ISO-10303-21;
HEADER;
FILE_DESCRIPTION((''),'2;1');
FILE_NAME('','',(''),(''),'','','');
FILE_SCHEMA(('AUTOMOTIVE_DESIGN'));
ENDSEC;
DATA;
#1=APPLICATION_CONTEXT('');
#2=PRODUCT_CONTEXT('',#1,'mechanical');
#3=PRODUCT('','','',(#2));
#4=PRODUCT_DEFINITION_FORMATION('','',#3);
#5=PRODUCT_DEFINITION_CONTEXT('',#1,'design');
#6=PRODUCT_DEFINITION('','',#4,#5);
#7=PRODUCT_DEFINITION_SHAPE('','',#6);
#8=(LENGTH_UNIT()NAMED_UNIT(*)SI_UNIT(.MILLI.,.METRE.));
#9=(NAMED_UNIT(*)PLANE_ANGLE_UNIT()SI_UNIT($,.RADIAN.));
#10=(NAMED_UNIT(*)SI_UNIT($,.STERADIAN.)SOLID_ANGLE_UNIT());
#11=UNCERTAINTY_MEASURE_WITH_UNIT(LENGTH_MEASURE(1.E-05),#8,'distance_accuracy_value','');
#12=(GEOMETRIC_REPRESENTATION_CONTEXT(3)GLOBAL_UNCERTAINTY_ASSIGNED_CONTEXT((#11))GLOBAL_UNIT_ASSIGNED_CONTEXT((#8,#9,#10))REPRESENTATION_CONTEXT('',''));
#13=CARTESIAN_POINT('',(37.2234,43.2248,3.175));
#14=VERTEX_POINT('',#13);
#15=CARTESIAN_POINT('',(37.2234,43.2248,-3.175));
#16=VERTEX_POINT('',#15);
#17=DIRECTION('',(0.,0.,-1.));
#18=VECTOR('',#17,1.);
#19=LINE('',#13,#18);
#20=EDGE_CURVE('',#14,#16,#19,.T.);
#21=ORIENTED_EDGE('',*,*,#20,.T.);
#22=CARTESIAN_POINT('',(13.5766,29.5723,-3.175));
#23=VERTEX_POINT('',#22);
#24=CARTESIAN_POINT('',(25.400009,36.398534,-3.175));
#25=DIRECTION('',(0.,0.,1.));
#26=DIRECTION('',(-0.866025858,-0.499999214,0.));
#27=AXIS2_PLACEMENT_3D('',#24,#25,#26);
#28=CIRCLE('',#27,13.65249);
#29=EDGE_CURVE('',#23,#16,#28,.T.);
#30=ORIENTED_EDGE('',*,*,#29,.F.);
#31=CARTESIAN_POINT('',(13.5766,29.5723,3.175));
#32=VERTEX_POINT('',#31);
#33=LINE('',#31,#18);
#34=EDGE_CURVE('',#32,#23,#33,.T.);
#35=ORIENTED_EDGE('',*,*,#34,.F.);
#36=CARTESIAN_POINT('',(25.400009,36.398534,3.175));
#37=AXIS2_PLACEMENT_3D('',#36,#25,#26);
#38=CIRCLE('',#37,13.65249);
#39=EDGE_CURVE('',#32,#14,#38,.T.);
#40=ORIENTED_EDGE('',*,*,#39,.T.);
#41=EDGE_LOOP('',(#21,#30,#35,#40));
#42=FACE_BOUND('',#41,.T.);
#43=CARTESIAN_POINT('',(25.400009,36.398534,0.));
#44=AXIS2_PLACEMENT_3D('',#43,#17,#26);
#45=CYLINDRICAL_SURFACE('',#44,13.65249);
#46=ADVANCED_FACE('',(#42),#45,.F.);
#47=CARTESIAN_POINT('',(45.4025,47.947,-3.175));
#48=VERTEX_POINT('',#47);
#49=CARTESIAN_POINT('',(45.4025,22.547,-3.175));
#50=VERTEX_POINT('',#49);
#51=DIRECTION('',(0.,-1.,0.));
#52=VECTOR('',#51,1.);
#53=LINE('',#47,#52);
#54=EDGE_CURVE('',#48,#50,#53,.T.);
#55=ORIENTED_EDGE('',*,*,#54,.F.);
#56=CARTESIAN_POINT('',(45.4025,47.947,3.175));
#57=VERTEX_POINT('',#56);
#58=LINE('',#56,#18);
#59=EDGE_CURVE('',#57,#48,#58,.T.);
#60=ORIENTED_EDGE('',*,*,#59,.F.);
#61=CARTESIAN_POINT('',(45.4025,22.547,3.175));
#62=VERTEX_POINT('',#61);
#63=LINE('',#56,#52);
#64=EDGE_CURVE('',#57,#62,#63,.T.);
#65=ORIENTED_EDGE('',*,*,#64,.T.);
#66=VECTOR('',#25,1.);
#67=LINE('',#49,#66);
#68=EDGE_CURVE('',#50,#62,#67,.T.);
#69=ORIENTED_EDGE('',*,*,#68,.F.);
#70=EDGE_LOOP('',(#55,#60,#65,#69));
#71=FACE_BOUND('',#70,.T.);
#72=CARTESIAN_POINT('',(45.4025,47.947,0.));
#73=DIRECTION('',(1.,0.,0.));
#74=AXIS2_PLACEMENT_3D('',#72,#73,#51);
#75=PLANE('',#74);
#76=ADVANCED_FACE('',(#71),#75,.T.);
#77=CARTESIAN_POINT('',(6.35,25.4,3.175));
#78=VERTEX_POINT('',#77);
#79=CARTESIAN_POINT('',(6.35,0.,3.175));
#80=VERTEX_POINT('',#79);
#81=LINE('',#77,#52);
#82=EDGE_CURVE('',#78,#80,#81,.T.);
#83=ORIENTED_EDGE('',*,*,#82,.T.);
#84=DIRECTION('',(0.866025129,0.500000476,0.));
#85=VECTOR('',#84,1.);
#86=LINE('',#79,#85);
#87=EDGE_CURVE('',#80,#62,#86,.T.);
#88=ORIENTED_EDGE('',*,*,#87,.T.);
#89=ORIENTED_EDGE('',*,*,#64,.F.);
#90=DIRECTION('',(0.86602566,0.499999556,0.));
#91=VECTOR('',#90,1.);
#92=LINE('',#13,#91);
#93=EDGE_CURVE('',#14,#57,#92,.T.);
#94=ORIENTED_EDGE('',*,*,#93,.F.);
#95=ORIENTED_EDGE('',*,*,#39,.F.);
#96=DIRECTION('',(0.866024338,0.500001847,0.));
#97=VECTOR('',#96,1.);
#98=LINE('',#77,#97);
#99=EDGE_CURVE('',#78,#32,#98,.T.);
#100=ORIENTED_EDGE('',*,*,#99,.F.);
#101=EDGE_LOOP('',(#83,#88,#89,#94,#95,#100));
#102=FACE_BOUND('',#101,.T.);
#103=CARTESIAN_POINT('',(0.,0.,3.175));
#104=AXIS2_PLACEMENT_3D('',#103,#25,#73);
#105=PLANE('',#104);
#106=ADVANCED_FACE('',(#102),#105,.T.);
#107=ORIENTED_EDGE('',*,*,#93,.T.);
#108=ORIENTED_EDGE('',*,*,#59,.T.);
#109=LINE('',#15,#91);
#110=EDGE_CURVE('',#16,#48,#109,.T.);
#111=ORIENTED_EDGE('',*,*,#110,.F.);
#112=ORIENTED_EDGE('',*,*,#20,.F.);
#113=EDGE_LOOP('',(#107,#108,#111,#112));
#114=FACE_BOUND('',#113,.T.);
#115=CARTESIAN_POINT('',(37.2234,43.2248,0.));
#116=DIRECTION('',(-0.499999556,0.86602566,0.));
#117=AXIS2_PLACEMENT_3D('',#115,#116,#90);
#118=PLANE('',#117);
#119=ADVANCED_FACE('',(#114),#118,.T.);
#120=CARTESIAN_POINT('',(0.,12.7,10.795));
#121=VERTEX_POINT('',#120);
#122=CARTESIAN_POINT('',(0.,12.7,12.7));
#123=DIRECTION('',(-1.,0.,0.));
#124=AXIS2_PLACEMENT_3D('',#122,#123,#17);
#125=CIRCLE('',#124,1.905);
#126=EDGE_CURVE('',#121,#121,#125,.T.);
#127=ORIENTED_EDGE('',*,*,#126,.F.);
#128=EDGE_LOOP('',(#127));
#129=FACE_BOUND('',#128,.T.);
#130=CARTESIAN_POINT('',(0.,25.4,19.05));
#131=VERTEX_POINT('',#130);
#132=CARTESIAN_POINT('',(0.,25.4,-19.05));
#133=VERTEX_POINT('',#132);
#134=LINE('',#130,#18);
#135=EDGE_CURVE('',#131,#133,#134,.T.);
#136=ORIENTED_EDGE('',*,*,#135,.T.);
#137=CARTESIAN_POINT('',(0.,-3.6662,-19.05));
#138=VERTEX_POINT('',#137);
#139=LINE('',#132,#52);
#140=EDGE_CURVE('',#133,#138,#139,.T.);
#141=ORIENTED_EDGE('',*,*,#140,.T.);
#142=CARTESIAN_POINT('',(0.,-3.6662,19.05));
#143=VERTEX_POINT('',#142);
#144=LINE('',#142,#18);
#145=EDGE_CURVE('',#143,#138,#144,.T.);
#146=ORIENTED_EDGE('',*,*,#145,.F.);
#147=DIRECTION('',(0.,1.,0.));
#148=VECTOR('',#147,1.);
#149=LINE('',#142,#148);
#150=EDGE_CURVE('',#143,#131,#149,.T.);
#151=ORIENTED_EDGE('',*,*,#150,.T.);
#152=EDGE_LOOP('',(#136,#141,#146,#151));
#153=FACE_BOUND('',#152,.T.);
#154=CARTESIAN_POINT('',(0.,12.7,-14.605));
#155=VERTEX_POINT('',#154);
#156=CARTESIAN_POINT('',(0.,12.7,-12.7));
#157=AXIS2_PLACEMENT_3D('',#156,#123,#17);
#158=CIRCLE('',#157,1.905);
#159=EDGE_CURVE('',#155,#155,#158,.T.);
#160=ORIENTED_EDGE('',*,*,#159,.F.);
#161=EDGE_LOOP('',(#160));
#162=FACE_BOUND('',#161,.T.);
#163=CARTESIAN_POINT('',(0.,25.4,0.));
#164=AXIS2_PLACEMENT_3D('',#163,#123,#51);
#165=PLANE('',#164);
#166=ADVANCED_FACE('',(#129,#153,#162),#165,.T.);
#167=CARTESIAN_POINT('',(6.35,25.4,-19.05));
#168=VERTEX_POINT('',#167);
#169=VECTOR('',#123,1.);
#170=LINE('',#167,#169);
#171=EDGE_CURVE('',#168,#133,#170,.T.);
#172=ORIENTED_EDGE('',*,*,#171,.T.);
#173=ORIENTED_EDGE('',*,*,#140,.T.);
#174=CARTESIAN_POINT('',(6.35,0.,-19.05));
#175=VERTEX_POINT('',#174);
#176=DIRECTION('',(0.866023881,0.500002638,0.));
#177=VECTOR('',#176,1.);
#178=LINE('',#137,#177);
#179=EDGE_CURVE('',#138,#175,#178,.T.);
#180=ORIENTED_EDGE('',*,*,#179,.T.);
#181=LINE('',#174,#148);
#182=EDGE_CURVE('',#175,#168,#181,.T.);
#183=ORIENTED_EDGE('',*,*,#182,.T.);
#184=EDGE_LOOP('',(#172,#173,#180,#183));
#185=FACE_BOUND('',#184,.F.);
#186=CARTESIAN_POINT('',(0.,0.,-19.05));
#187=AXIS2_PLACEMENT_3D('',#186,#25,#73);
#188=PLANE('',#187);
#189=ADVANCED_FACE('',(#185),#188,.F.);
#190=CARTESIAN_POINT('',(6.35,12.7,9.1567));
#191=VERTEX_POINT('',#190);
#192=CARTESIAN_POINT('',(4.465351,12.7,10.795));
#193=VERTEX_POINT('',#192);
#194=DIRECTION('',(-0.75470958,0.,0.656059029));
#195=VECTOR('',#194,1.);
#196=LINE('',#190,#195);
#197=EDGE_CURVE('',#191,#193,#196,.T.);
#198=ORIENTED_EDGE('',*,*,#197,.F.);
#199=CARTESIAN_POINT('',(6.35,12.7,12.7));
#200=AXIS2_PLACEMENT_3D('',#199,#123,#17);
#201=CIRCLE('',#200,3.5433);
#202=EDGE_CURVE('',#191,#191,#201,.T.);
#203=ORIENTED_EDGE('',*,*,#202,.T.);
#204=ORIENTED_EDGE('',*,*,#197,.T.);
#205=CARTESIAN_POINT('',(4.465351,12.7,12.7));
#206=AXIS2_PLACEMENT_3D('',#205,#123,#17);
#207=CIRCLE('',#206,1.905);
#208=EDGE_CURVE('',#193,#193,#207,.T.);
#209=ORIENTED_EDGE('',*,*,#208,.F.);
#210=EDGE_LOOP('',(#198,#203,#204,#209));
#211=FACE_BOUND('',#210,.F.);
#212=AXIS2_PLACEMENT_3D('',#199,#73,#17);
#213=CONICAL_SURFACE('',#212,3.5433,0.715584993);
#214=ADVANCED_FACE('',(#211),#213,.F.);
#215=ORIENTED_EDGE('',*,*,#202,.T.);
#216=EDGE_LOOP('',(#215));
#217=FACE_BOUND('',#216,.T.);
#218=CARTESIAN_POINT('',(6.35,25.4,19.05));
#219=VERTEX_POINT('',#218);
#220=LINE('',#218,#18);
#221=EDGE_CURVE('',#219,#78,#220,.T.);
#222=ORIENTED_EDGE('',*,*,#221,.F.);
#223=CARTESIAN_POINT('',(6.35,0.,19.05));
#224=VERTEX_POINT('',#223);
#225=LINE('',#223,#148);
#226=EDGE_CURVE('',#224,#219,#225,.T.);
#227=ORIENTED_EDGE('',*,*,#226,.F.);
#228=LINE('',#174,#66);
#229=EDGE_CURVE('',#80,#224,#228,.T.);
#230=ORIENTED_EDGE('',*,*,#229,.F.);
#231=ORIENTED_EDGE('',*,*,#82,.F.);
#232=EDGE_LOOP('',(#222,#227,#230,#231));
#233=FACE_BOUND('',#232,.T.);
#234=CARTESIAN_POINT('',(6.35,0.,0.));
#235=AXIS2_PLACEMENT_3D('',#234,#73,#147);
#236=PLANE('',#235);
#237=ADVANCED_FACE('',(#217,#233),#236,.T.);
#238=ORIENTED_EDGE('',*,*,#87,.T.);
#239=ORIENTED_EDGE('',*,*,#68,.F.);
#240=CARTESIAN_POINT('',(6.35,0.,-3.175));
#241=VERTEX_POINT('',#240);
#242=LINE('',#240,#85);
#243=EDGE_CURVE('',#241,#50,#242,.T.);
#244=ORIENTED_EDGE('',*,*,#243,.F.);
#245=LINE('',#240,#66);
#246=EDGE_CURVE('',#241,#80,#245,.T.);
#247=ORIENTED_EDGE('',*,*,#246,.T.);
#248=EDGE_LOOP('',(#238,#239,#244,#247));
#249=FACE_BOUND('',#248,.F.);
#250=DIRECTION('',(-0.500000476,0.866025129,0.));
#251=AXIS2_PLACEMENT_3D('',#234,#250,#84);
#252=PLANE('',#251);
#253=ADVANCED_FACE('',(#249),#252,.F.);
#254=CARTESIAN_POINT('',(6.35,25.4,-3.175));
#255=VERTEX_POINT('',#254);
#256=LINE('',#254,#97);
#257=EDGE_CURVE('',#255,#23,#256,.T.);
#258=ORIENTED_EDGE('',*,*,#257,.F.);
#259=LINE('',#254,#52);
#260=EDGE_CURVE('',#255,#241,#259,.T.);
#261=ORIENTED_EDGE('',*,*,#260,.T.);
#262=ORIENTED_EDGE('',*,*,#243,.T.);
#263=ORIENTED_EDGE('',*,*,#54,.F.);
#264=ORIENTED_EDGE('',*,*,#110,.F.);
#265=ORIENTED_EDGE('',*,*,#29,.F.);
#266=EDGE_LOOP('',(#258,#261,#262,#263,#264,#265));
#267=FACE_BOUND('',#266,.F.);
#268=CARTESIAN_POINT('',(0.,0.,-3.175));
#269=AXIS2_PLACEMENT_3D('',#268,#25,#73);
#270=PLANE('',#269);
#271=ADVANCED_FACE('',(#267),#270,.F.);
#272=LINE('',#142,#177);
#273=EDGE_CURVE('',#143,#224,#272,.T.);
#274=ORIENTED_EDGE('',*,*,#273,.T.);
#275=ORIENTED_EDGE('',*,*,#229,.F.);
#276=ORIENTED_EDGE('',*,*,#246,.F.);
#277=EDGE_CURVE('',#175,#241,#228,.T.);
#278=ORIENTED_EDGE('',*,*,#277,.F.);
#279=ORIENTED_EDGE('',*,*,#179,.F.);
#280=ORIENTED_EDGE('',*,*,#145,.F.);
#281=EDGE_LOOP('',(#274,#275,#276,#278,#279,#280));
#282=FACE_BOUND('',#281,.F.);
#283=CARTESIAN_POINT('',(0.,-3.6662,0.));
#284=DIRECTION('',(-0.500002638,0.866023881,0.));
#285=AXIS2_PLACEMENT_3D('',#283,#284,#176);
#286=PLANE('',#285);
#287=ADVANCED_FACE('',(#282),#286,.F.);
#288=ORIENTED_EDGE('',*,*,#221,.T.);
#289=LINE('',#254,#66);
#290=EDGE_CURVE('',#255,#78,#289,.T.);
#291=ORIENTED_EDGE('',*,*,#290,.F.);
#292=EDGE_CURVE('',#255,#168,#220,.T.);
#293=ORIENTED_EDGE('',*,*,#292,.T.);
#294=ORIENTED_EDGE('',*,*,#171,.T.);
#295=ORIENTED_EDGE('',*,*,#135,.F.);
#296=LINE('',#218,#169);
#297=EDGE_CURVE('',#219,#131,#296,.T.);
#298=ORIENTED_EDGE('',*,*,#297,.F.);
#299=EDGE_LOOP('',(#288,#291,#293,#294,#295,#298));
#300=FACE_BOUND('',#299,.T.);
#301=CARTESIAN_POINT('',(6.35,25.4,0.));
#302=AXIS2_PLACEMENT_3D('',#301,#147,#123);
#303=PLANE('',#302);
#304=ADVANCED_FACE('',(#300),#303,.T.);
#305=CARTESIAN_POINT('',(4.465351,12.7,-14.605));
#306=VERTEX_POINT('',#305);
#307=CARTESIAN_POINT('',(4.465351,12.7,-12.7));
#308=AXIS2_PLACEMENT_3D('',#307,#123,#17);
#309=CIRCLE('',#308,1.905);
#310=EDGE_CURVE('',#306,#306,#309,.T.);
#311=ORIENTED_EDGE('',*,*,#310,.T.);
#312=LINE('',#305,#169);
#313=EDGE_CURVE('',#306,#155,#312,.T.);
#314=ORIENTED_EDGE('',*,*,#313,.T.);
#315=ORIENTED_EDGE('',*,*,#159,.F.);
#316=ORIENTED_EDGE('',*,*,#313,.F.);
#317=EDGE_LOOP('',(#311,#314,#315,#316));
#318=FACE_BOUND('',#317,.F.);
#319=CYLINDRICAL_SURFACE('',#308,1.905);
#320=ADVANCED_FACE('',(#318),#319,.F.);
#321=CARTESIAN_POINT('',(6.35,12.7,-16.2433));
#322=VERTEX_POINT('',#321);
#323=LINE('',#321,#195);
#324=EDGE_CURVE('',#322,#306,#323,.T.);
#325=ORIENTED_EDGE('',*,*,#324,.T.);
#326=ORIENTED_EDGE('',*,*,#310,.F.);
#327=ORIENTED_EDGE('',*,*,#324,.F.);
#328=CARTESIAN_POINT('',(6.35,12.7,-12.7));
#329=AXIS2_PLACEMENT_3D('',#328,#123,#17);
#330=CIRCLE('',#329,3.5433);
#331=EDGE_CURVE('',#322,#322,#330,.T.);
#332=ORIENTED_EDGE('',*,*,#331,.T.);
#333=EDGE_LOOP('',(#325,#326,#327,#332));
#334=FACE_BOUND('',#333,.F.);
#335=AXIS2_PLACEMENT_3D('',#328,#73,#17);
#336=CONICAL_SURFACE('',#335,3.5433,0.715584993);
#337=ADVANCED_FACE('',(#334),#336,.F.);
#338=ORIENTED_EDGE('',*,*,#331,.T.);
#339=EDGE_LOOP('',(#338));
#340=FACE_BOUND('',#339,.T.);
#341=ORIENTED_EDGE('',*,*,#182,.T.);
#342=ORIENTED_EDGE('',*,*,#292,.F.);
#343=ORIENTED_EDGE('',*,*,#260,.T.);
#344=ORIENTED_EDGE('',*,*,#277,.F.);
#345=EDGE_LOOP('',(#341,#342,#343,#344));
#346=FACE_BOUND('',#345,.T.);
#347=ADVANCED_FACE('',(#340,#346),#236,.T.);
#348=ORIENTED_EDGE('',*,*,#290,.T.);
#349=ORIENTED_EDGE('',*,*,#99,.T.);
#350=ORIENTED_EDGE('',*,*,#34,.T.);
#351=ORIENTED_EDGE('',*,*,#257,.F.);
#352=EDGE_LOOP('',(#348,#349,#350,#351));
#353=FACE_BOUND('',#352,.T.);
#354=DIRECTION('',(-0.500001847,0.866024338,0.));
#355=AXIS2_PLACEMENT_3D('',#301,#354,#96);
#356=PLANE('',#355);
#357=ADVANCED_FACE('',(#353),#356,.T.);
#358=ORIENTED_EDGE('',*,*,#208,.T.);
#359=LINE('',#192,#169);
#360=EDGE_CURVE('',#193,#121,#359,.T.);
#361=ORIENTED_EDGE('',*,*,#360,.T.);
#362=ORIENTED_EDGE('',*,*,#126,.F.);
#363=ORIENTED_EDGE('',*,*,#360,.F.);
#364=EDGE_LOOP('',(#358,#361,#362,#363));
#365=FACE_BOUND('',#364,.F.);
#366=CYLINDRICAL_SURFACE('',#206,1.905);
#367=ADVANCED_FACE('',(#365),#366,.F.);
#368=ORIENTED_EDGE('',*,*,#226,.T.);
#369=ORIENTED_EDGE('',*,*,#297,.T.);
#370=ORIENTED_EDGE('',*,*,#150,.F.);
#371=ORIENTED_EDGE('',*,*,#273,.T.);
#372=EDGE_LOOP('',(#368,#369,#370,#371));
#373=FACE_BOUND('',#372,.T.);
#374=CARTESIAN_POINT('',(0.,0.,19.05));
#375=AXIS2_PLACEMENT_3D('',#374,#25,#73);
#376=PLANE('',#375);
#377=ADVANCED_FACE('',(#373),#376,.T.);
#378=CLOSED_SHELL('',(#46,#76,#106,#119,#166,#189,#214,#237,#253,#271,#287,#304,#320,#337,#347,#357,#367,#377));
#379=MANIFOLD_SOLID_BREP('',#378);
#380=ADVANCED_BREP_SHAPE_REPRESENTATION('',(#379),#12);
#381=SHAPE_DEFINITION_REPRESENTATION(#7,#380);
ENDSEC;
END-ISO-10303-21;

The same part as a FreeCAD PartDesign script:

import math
import FreeCAD as App
import Part
import Sketcher

V = App.Vector
Q = App.Units.Quantity


def add_polygon(sketch, points):
    """Adds a closed chain of lines whose ends are joined by coincident constraints."""
    first, n = sketch.GeometryCount, len(points)
    for a, b in zip(points, points[1:] + points[:1]):
        sketch.addGeometry(Part.LineSegment(App.Vector(*a, 0), App.Vector(*b, 0)), False)
    for i in range(n):
        sketch.addConstraint(Sketcher.Constraint("Coincident", first + i, 2, first + (i + 1) % n, 1))

doc = App.newDocument("Part")
body = doc.addObject("PartDesign::Body", "Body")

sketch1 = body.newObject("Sketcher::SketchObject", "Sketch")
sketch1.AttachmentSupport = (doc.getObject("XY_Plane"), [""])
sketch1.MapMode = "FlatFace"
add_polygon(sketch1, [(0, 25.4), (0, 0), (6.35, 0), (6.35, 25.4)])
sketch1.addConstraint(Sketcher.Constraint("Vertical", 0))
sketch1.addConstraint(Sketcher.Constraint("Horizontal", 1))
sketch1.addConstraint(Sketcher.Constraint("Vertical", 2))
sketch1.addConstraint(Sketcher.Constraint("Horizontal", 3))
sketch1.addConstraint(Sketcher.Constraint("Coincident", 0, 2, -1, 1))
sketch1.addConstraint(Sketcher.Constraint("DistanceY", 0, 2, 0, 1, Q("1 in")))
sketch1.addConstraint(Sketcher.Constraint("DistanceX", 1, 1, 1, 2, Q("0.25 in")))
pad1 = body.newObject("PartDesign::Pad", "Pad")
pad1.Profile = sketch1
pad1.Length = Q("1.5 in")
pad1.Midplane = True

sketch2 = body.newObject("Sketcher::SketchObject", "Sketch001")
sketch2.AttachmentSupport = (doc.getObject("XY_Plane"), [""])
sketch2.MapMode = "FlatFace"
sketch2.addGeometry(Part.LineSegment(V(13.5766, 29.5723, 0), V(6.35, 25.4, 0)), False)
sketch2.addGeometry(Part.LineSegment(V(6.35, 25.4, 0), V(6.35, 0, 0)), False)
sketch2.addGeometry(Part.LineSegment(V(6.35, 0, 0), V(45.4025, 22.547, 0)), False)
sketch2.addGeometry(Part.LineSegment(V(45.4025, 22.547, 0), V(45.4025, 47.947, 0)), False)
sketch2.addGeometry(Part.LineSegment(V(45.4025, 47.947, 0), V(37.2234, 43.2248, 0)), False)
sketch2.addGeometry(Part.ArcOfCircle(Part.Circle(V(25.4, 36.3985, 0), V(0, 0, 1), 13.652465), math.radians(-150.000157), math.radians(30.000207)), False)
sketch2.addConstraint(Sketcher.Constraint("Coincident", 0, 2, 1, 1))
sketch2.addConstraint(Sketcher.Constraint("Coincident", 1, 2, 2, 1))
sketch2.addConstraint(Sketcher.Constraint("Coincident", 2, 2, 3, 1))
sketch2.addConstraint(Sketcher.Constraint("Coincident", 3, 2, 4, 1))
sketch2.addConstraint(Sketcher.Constraint("Coincident", 4, 2, 5, 2))
sketch2.addConstraint(Sketcher.Constraint("Coincident", 5, 1, 0, 1))
sketch2.addConstraint(Sketcher.Constraint("Vertical", 1))
sketch2.addConstraint(Sketcher.Constraint("Vertical", 3))
sketch2.addConstraint(Sketcher.Constraint("PointOnObject", 1, 2, -1))
sketch2.addConstraint(Sketcher.Constraint("Parallel", 0, 2))
sketch2.addConstraint(Sketcher.Constraint("Parallel", 2, 4))
sketch2.addConstraint(Sketcher.Constraint("Equal", 1, 3))
sketch2.addConstraint(Sketcher.Constraint("DistanceY", 1, 2, 1, 1, Q("1 in")))
sketch2.addConstraint(Sketcher.Constraint("DistanceX", -1, 1, 5, 3, Q("1 in")))
sketch2.addConstraint(Sketcher.Constraint("Angle", 2, Q("30 deg")))
sketch2.addConstraint(Sketcher.Constraint("Radius", 5, Q("0.5375 in")))
sketch2.addConstraint(Sketcher.Constraint("DistanceX", -1, 1, 0, 2, Q("0.25 in")))
sketch2.addConstraint(Sketcher.Constraint("DistanceY", -1, 1, 5, 3, Q("1.433 in")))
sketch2.addConstraint(Sketcher.Constraint("DistanceX", 4, 2, 3, 2, Q("0.322 in")))
pad2 = body.newObject("PartDesign::Pad", "Pad001")
pad2.Profile = sketch2
pad2.Length = Q("0.25 in")
pad2.Midplane = True

sketch3 = body.newObject("Sketcher::SketchObject", "Sketch002")
sketch3.AttachmentSupport = (doc.getObject("XY_Plane"), [""])
sketch3.MapMode = "FlatFace"
add_polygon(sketch3, [(0, -3.6662), (6.35, 0), (0, 0)])
sketch3.addConstraint(Sketcher.Constraint("Horizontal", 1))
sketch3.addConstraint(Sketcher.Constraint("Vertical", 2))
sketch3.addConstraint(Sketcher.Constraint("Coincident", 1, 2, -1, 1))
sketch3.addConstraint(Sketcher.Constraint("Angle", 0, Q("30.0002 deg")))
sketch3.addConstraint(Sketcher.Constraint("DistanceX", 1, 2, 1, 1, Q("0.25 in")))
pad3 = body.newObject("PartDesign::Pad", "Pad002")
pad3.Profile = sketch3
pad3.Length = Q("1.5 in")
pad3.Midplane = True

sketch4 = body.newObject("Sketcher::SketchObject", "Sketch003")
sketch4.AttachmentSupport = (doc.getObject("YZ_Plane"), [""])
sketch4.MapMode = "FlatFace"
sketch4.AttachmentOffset = App.Placement(V(0, 0, 0.25 * 25.4), App.Rotation())
sketch4.addGeometry(Part.Circle(V(12.7, 12.7, 0), V(0, 0, 1), 1.905), False)
sketch4.addGeometry(Part.Circle(V(12.7, -12.7, 0), V(0, 0, 1), 1.905), False)
sketch4.addConstraint(Sketcher.Constraint("Equal", 0, 1))
sketch4.addConstraint(Sketcher.Constraint("Symmetric", 0, 3, 1, 3, -1))
sketch4.addConstraint(Sketcher.Constraint("Diameter", 0, Q("0.15 in")))
sketch4.addConstraint(Sketcher.Constraint("DistanceY", 1, 3, 0, 3, Q("1 in")))
sketch4.addConstraint(Sketcher.Constraint("DistanceX", -1, 1, 0, 3, Q("0.5 in")))
doc.recompute()
hole = body.newObject("PartDesign::Hole", "Hole")
hole.Profile = sketch4
hole.ThreadType = "None"
hole.Diameter = Q("0.15 in")
hole.DepthType = "ThroughAll"
hole.HoleCutType = "Countersink"
hole.HoleCutDiameter = Q("0.279 in")
hole.HoleCutCountersinkAngle = 82

doc.recompute()
